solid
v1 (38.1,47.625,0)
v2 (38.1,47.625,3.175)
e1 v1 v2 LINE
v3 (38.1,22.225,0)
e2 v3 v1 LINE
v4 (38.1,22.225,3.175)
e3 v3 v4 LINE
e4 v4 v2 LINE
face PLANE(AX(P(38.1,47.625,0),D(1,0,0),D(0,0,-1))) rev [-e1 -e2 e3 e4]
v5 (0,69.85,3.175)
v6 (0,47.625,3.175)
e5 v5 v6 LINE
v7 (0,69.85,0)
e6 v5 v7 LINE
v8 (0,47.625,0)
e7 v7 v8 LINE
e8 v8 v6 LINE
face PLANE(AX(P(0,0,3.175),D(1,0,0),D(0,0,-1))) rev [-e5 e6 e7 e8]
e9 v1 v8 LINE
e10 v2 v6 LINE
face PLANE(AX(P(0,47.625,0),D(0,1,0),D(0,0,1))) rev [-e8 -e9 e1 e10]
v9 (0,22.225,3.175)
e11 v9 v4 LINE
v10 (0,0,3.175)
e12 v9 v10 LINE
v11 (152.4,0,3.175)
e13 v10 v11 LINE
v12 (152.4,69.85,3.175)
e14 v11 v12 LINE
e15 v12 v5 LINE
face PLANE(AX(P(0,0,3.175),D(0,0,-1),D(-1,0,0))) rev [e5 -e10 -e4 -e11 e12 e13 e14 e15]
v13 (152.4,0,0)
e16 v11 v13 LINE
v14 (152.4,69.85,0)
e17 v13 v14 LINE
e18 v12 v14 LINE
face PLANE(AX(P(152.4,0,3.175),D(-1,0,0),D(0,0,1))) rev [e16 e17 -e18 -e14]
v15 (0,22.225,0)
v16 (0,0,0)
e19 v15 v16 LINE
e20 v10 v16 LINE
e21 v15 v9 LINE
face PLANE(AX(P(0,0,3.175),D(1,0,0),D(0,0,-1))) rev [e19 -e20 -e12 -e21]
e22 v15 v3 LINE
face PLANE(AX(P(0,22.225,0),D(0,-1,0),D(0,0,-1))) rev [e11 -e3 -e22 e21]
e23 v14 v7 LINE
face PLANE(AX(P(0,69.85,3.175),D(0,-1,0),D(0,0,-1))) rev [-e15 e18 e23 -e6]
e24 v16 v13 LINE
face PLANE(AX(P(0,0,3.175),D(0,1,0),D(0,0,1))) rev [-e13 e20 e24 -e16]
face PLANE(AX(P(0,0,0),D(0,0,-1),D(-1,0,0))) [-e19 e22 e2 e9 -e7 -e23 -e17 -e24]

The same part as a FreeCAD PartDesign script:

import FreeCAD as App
import Part
import Sketcher
Q = App.Units.Quantity

doc = App.newDocument("Part")
body = doc.addObject("PartDesign::Body", "Body")

# Sketch on XY plane
sketch1 = body.newObject("Sketcher::SketchObject", "Sketch")
sketch1.AttachmentSupport = (doc.getObject("XY_Plane"), [""])
sketch1.MapMode = "FlatFace"
sketch1.addGeometry(Part.LineSegment(App.Vector(0, 69.85, 0), App.Vector(0, 0, 0)), False)
sketch1.addGeometry(Part.LineSegment(App.Vector(0, 0, 0), App.Vector(152.4, 0, 0)), False)
sketch1.addGeometry(Part.LineSegment(App.Vector(152.4, 0, 0), App.Vector(152.4, 69.85, 0)), False)
sketch1.addGeometry(Part.LineSegment(App.Vector(152.4, 69.85, 0), App.Vector(0, 69.85, 0)), False)
sketch1.addConstraint(Sketcher.Constraint("Coincident", 0, 2, 1, 1))
sketch1.addConstraint(Sketcher.Constraint("Coincident", 1, 2, 2, 1))
sketch1.addConstraint(Sketcher.Constraint("Coincident", 2, 2, 3, 1))
sketch1.addConstraint(Sketcher.Constraint("Coincident", 3, 2, 0, 1))
sketch1.addConstraint(Sketcher.Constraint("Vertical", 0))
sketch1.addConstraint(Sketcher.Constraint("Horizontal", 1))
sketch1.addConstraint(Sketcher.Constraint("Vertical", 2))
sketch1.addConstraint(Sketcher.Constraint("Horizontal", 3))
sketch1.addConstraint(Sketcher.Constraint("Coincident", 0, 2, -1, 1))
sketch1.addConstraint(Sketcher.Constraint("DistanceX", 1, 1, 1, 2, Q("6 in")))
sketch1.addConstraint(Sketcher.Constraint("DistanceY", 0, 2, 0, 1, Q("2.75 in")))
pad1 = body.newObject("PartDesign::Pad", "Pad")
pad1.Profile = sketch1
pad1.Length = Q("0.125 in")

# Sketch on XY plane
sketch2 = body.newObject("Sketcher::SketchObject", "Sketch001")
sketch2.AttachmentSupport = (doc.getObject("XY_Plane"), [""])
sketch2.MapMode = "FlatFace"
sketch2.AttachmentOffset = App.Placement(App.Vector(0, 0, 0.125 * 25.4), App.Rotation())
sketch2.addGeometry(Part.LineSegment(App.Vector(0, 47.625, 0), App.Vector(0, 22.225, 0)), False)
sketch2.addGeometry(Part.LineSegment(App.Vector(0, 22.225, 0), App.Vector(38.1, 22.225, 0)), False)
sketch2.addGeometry(Part.LineSegment(App.Vector(38.1, 22.225, 0), App.Vector(38.1, 47.625, 0)), False)
sketch2.addGeometry(Part.LineSegment(App.Vector(38.1, 47.625, 0), App.Vector(0, 47.625, 0)), False)
sketch2.addConstraint(Sketcher.Constraint("Coincident", 0, 2, 1, 1))
sketch2.addConstraint(Sketcher.Constraint("Coincident", 1, 2, 2, 1))
sketch2.addConstraint(Sketcher.Constraint("Coincident", 2, 2, 3, 1))
sketch2.addConstraint(Sketcher.Constraint("Coincident", 3, 2, 0, 1))
sketch2.addConstraint(Sketcher.Constraint("Vertical", 0))
sketch2.addConstraint(Sketcher.Constraint("Horizontal", 1))
sketch2.addConstraint(Sketcher.Constraint("Vertical", 2))
sketch2.addConstraint(Sketcher.Constraint("Horizontal", 3))
sketch2.addConstraint(Sketcher.Constraint("PointOnObject", 0, 2, -2))
sketch2.addConstraint(Sketcher.Constraint("DistanceY", 0, 2, 0, 1, Q("1 in")))
sketch2.addConstraint(Sketcher.Constraint("DistanceX", 1, 1, 1, 2, Q("1.5 in")))
sketch2.addConstraint(Sketcher.Constraint("DistanceY", -1, 1, 0, 2, Q("0.875 in")))
pocket1 = body.newObject("PartDesign::Pocket", "Pocket")
pocket1.Profile = sketch2
pocket1.Type = "ThroughAll"

doc.recompute()
